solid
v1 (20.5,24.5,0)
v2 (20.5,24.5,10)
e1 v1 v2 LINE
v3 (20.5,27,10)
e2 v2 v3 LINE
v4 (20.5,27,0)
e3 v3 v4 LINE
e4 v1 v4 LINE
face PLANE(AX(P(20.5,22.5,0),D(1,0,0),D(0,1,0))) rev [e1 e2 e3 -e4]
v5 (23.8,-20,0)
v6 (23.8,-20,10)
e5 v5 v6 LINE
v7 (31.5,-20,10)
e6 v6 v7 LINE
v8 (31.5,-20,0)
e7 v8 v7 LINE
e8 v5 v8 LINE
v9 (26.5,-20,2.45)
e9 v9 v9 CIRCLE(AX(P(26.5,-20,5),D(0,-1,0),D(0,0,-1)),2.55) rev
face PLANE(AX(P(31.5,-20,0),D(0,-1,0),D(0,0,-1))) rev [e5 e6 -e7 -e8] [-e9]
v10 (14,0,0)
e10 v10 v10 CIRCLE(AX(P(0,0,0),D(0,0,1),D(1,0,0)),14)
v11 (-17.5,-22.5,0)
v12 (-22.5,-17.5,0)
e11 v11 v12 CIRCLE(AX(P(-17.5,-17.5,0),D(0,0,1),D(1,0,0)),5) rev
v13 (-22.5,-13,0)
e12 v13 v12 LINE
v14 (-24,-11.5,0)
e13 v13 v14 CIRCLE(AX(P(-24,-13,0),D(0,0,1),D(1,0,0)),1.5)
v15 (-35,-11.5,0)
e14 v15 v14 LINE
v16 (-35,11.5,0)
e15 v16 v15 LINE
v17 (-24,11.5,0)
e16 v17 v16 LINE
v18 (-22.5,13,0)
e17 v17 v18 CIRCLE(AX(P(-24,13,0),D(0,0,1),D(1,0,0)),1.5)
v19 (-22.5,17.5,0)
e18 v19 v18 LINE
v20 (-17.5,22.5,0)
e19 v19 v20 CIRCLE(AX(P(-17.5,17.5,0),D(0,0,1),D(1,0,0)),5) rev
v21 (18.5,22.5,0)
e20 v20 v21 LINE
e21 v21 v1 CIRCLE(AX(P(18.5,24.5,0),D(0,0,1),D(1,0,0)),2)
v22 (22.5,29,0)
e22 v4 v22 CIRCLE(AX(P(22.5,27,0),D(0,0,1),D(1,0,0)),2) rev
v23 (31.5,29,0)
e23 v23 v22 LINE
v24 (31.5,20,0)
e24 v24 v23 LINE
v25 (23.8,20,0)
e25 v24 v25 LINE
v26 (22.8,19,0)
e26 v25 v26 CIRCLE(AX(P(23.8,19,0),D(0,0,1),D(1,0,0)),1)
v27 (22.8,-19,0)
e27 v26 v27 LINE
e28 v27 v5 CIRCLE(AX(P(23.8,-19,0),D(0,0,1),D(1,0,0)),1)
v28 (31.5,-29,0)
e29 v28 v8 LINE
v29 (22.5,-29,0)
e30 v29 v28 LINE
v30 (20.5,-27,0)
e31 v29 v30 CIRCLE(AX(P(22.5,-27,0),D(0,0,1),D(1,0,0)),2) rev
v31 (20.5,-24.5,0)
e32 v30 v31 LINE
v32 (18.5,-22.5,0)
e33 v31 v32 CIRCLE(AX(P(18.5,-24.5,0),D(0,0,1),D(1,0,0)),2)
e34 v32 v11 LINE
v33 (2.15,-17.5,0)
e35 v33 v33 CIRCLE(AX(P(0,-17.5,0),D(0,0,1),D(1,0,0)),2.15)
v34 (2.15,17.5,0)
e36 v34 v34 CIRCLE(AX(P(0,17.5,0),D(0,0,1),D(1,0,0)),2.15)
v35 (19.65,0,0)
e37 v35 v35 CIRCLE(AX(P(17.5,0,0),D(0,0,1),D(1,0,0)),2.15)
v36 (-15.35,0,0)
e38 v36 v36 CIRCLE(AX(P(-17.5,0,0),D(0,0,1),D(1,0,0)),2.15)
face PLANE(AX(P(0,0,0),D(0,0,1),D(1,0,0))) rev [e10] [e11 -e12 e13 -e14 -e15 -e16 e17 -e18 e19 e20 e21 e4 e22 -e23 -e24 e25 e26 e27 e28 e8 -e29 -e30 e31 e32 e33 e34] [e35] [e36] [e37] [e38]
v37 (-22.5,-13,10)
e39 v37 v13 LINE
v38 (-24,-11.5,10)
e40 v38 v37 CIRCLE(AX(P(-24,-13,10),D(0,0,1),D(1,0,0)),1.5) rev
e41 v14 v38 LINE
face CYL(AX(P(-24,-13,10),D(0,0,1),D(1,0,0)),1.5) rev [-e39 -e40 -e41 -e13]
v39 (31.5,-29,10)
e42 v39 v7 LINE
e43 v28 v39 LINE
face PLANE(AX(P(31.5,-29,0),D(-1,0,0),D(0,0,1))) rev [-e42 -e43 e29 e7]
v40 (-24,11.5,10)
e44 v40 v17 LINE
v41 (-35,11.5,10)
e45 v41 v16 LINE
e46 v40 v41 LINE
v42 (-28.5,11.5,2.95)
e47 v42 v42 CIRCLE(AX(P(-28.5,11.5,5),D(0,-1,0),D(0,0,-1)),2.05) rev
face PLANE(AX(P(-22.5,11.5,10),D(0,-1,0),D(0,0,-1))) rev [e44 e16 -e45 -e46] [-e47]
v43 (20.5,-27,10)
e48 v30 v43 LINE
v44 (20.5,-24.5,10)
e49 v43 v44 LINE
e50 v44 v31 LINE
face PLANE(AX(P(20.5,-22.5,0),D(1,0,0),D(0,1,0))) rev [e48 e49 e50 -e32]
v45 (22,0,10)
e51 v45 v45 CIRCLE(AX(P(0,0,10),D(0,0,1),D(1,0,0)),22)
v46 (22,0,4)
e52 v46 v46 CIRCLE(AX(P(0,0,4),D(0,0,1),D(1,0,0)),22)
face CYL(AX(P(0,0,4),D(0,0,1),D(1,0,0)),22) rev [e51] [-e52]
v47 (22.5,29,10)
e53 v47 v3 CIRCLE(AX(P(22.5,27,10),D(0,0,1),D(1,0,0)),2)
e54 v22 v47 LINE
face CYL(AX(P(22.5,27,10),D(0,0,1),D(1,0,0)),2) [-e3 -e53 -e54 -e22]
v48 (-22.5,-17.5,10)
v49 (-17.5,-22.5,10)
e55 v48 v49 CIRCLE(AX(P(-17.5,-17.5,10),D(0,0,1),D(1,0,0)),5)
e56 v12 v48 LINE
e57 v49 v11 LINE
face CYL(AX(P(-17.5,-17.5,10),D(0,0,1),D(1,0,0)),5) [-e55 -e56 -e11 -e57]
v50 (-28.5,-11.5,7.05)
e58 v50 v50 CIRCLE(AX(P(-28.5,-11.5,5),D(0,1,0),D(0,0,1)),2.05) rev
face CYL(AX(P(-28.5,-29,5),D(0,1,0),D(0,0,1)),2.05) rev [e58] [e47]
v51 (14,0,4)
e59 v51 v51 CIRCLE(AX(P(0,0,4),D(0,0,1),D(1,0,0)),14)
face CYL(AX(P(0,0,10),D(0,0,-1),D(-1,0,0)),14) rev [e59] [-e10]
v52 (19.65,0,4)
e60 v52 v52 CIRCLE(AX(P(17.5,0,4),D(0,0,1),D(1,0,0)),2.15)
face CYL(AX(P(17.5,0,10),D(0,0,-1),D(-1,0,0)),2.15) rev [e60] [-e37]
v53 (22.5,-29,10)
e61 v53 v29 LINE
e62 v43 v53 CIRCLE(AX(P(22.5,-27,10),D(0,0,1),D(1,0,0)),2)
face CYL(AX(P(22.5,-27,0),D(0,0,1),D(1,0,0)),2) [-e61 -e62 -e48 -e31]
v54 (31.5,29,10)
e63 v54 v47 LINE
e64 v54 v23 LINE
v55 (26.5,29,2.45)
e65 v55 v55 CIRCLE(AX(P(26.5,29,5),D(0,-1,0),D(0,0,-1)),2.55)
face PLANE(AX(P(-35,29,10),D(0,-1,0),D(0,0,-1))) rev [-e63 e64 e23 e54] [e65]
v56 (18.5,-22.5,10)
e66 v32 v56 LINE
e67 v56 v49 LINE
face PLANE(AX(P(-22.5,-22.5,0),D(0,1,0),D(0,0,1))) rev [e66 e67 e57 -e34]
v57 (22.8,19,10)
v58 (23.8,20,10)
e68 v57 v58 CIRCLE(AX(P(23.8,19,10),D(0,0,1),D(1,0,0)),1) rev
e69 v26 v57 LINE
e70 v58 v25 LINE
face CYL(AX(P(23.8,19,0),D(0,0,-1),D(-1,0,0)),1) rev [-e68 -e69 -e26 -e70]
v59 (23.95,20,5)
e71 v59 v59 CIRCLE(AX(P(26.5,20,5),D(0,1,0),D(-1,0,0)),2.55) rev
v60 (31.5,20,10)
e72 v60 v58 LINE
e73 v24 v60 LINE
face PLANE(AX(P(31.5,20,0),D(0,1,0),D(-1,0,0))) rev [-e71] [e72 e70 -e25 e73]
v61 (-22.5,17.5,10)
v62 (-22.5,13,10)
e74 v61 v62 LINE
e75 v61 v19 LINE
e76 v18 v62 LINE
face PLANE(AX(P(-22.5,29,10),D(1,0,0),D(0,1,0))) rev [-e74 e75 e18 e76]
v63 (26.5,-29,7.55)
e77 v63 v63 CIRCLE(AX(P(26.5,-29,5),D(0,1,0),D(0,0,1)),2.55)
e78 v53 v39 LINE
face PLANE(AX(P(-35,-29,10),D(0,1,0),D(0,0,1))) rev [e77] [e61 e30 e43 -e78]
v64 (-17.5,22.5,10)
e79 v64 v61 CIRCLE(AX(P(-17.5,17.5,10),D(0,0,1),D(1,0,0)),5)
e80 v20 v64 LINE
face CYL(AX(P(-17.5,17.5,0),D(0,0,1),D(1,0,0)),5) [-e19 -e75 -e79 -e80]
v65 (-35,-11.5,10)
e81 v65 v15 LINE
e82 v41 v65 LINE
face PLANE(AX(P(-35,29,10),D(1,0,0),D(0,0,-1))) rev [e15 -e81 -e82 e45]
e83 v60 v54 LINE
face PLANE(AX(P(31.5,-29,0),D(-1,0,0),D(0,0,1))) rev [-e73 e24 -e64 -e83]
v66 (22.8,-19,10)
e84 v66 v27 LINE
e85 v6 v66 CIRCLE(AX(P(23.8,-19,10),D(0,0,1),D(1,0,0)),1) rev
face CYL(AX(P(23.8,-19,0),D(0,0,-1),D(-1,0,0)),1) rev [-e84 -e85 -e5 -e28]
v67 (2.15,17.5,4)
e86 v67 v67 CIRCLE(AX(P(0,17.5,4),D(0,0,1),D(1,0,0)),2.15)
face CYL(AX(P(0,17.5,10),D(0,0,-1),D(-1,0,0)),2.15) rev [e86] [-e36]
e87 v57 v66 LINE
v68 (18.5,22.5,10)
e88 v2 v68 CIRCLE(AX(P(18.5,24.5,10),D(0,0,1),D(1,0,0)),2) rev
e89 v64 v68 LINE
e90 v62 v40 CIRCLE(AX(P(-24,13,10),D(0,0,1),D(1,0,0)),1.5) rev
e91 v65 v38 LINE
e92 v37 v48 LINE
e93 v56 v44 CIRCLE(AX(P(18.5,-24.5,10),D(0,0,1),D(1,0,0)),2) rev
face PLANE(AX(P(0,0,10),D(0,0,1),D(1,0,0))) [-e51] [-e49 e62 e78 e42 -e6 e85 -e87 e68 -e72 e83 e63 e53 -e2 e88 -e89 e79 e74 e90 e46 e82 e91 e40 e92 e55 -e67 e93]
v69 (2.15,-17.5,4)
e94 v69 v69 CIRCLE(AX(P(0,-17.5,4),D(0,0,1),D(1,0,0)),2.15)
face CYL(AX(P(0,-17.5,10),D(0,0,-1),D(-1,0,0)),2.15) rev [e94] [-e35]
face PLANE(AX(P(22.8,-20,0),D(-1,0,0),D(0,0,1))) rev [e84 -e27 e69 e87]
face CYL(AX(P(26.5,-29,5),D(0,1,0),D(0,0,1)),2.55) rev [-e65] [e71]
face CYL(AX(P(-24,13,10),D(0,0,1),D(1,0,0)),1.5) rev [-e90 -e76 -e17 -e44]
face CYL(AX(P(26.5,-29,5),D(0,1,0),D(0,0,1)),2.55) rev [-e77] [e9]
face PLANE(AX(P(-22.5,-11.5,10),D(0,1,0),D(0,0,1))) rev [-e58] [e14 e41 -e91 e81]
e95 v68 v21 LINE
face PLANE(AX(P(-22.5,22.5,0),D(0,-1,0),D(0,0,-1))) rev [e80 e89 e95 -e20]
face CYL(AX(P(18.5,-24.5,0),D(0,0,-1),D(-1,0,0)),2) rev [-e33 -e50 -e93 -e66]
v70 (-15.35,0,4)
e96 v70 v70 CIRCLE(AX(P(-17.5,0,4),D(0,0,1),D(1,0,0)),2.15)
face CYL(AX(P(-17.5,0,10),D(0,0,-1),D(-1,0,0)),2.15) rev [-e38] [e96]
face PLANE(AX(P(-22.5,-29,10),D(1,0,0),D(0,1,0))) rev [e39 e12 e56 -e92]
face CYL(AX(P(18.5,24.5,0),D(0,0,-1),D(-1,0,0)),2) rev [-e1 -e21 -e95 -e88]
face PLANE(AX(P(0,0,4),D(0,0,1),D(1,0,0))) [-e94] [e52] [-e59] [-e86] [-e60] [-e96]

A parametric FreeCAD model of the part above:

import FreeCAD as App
import Part
import Sketcher
Q = App.Units.Quantity


def edges_at(feature, points):
    """Names of the edges that pass closest to the given points."""
    edges = feature.Shape.Edges
    near = lambda p: min(range(len(edges)), key=lambda i: edges[i].distToShape(Part.Vertex(*p))[0])
    return sorted({f"Edge{near(p) + 1}" for p in points})

doc = App.newDocument("Part")
body = doc.addObject("PartDesign::Body", "Body")

# Sketch on XY plane
sketch1 = doc.addObject("Sketcher::SketchObject", "Sketch")
body.addObject(sketch1)
sketch1.AttachmentSupport = (doc.XY_Plane, [""])
sketch1.MapMode = "FlatFace"
sketch1.addGeometry([
    Part.LineSegment(App.Vector(-35, 29, 0), App.Vector(-35, -29, 0)),  # 0
    Part.LineSegment(App.Vector(-35, -29, 0), App.Vector(35, -29, 0)),  # 1
    Part.LineSegment(App.Vector(35, -29, 0), App.Vector(35, 29, 0)),  # 2
    Part.LineSegment(App.Vector(35, 29, 0), App.Vector(-35, 29, 0)),  # 3
    Part.Circle(App.Vector(0, -17.5, 0), App.Vector(0, 0, 1), 2.1),  # 4
    Part.Circle(App.Vector(-17.5, 0, 0), App.Vector(0, 0, 1), 2.1),  # 5
    Part.Circle(App.Vector(0, 0, 0), App.Vector(0, 0, 1), 14),  # 6
    Part.Circle(App.Vector(17.5, 0, 0), App.Vector(0, 0, 1), 2.1),  # 7
    Part.Circle(App.Vector(0, 17.5, 0), App.Vector(0, 0, 1), 2.1),  # 8
], False)
sketch1.addConstraint([
    Sketcher.Constraint("Coincident", 0, 2, 1, 1),
    Sketcher.Constraint("Coincident", 1, 2, 2, 1),
    Sketcher.Constraint("Coincident", 2, 2, 3, 1),
    Sketcher.Constraint("Coincident", 3, 2, 0, 1),
    Sketcher.Constraint("Vertical", 0),
    Sketcher.Constraint("Horizontal", 1),
    Sketcher.Constraint("Vertical", 2),
    Sketcher.Constraint("Horizontal", 3),
    Sketcher.Constraint("Coincident", 6, 3, -1, 1),
    Sketcher.Constraint("Equal", 4, 5),
    Sketcher.Constraint("Equal", 5, 7),
    Sketcher.Constraint("Equal", 7, 8),
    Sketcher.Constraint("Symmetric", 5, 3, 7, 3, -1, 1),
    Sketcher.Constraint("Symmetric", 4, 3, 8, 3, -1, 1),
    Sketcher.Constraint("Symmetric", 0, 2, 2, 2, -1, 1),
    Sketcher.Constraint("PointOnObject", 4, 3, -2),
    Sketcher.Constraint("PointOnObject", 5, 3, -1),
    Sketcher.Constraint("Diameter", 6, Q("28 mm")),
    Sketcher.Constraint("Diameter", 4, Q("4.3 mm")),
    Sketcher.Constraint("DistanceX", 1, 1, 1, 2, Q("70 mm")),
    Sketcher.Constraint("DistanceY", 0, 2, 0, 1, Q("58 mm")),
    Sketcher.Constraint("DistanceX", 5, 3, 7, 3, Q("35 mm")),
    Sketcher.Constraint("DistanceY", 4, 3, 8, 3, Q("35 mm")),
])
pad1 = doc.addObject("PartDesign::Pad", "Pad")
body.addObject(pad1)
pad1.Profile = sketch1
pad1.Length = 10

# Sketch on XY plane
sketch2 = doc.addObject("Sketcher::SketchObject", "Sketch001")
body.addObject(sketch2)
sketch2.AttachmentSupport = (doc.XY_Plane, [""])
sketch2.MapMode = "FlatFace"
sketch2.AttachmentOffset = App.Placement(App.Vector(0, 0, 10), App.Rotation())
sketch2.addGeometry(Part.Circle(App.Vector(0, 0, 0), App.Vector(0, 0, 1), 22), False)
sketch2.addConstraint([
    Sketcher.Constraint("Coincident", 0, 3, -1, 1),
    Sketcher.Constraint("Diameter", 0, Q("44 mm")),
])
pocket1 = doc.addObject("PartDesign::Pocket", "Pocket")
body.addObject(pocket1)
pocket1.Profile = sketch2
pocket1.Length = 6

# Sketch on XZ plane
sketch3 = doc.addObject("Sketcher::SketchObject", "Sketch002")
body.addObject(sketch3)
sketch3.AttachmentSupport = (doc.XZ_Plane, [""])
sketch3.MapMode = "FlatFace"
sketch3.AttachmentOffset = App.Placement(App.Vector(0, 0, -29), App.Rotation())
sketch3.addGeometry(Part.Circle(App.Vector(26.5, 5, 0), App.Vector(0, 0, 1), 2.5), False)
sketch3.addConstraint([
    Sketcher.Constraint("Diameter", 0, Q("5.1 mm")),
    Sketcher.Constraint("DistanceY", -1, 1, 0, 3, Q("5 mm")),
    Sketcher.Constraint("DistanceX", -1, 1, 0, 3, Q("26.5 mm")),
])
pocket2 = doc.addObject("PartDesign::Pocket", "Pocket001")
body.addObject(pocket2)
pocket2.Profile = sketch3
pocket2.Type = "ThroughAll"
pocket2.Midplane = True

# Sketch on XZ plane
sketch4 = doc.addObject("Sketcher::SketchObject", "Sketch003")
body.addObject(sketch4)
sketch4.AttachmentSupport = (doc.XZ_Plane, [""])
sketch4.MapMode = "FlatFace"
sketch4.AttachmentOffset = App.Placement(App.Vector(0, 0, -29), App.Rotation())
sketch4.addGeometry(Part.Circle(App.Vector(-28.5, 5, 0), App.Vector(0, 0, 1), 2), False)
sketch4.addConstraint([
    Sketcher.Constraint("Diameter", 0, Q("4.1 mm")),
    Sketcher.Constraint("DistanceY", -1, 1, 0, 3, Q("5 mm")),
    Sketcher.Constraint("DistanceX", 0, 3, -1, 1, Q("28.5 mm")),
])
pocket3 = doc.addObject("PartDesign::Pocket", "Pocket002")
body.addObject(pocket3)
pocket3.Profile = sketch4
pocket3.Type = "ThroughAll"
pocket3.Midplane = True

# Sketch on XY plane
sketch5 = doc.addObject("Sketcher::SketchObject", "Sketch004")
body.addObject(sketch5)
sketch5.AttachmentSupport = (doc.XY_Plane, [""])
sketch5.MapMode = "FlatFace"
sketch5.addGeometry([
    Part.LineSegment(App.Vector(-22, 29, 0), App.Vector(-22, 12, 0)),  # 0
    Part.LineSegment(App.Vector(-22, 12, 0), App.Vector(-35, 12, 0)),  # 1
    Part.LineSegment(App.Vector(-35, 12, 0), App.Vector(-35, 29, 0)),  # 2
    Part.LineSegment(App.Vector(-35, 29, 0), App.Vector(-22, 29, 0)),  # 3
    Part.LineSegment(App.Vector(-22, -12, 0), App.Vector(-22, -29, 0)),  # 4
    Part.LineSegment(App.Vector(-22, -29, 0), App.Vector(-35, -29, 0)),  # 5
    Part.LineSegment(App.Vector(-35, -29, 0), App.Vector(-35, -12, 0)),  # 6
    Part.LineSegment(App.Vector(-35, -12, 0), App.Vector(-22, -12, 0)),  # 7
], False)
sketch5.addConstraint([
    Sketcher.Constraint("Coincident", 0, 2, 1, 1),
    Sketcher.Constraint("Coincident", 1, 2, 2, 1),
    Sketcher.Constraint("Coincident", 2, 2, 3, 1),
    Sketcher.Constraint("Coincident", 3, 2, 0, 1),
    Sketcher.Constraint("Coincident", 4, 2, 5, 1),
    Sketcher.Constraint("Coincident", 5, 2, 6, 1),
    Sketcher.Constraint("Coincident", 6, 2, 7, 1),
    Sketcher.Constraint("Coincident", 7, 2, 4, 1),
    Sketcher.Constraint("Vertical", 0),
    Sketcher.Constraint("Horizontal", 1),
    Sketcher.Constraint("Vertical", 2),
    Sketcher.Constraint("Horizontal", 3),
    Sketcher.Constraint("Vertical", 4),
    Sketcher.Constraint("Horizontal", 5),
    Sketcher.Constraint("Vertical", 6),
    Sketcher.Constraint("Horizontal", 7),
    Sketcher.Constraint("Symmetric", 3, 2, 4, 2, -1),
    Sketcher.Constraint("Symmetric", 1, 2, 6, 2, -1),
    Sketcher.Constraint("DistanceX", 1, 2, 1, 1, Q("12.5 mm")),
    Sketcher.Constraint("DistanceY", 0, 2, 0, 1, Q("17.5 mm")),
    Sketcher.Constraint("DistanceX", 1, 2, -1, 1, Q("35 mm")),
    Sketcher.Constraint("DistanceY", -1, 1, 2, 2, Q("29 mm")),
])
pocket4 = doc.addObject("PartDesign::Pocket", "Pocket003")
body.addObject(pocket4)
pocket4.Profile = sketch5
pocket4.Type = "ThroughAll"
pocket4.Reversed = True
doc.recompute()

fillet = doc.addObject("PartDesign::Fillet", "Fillet")
body.addObject(fillet)
fillet.Base = (pocket4, edges_at(pocket4, [(-22.5, 11.5, 5), (-22.5, -11.5, 5)]))
fillet.Radius = 1.5

# Sketch on XZ plane
sketch6 = doc.addObject("Sketcher::SketchObject", "Sketch005")
body.addObject(sketch6)
sketch6.AttachmentSupport = (doc.XZ_Plane, [""])
sketch6.MapMode = "FlatFace"
sketch6.AttachmentOffset = App.Placement(App.Vector(0, 0, -29), App.Rotation())
sketch6.addGeometry([
    Part.LineSegment(App.Vector(31.5, 0, 0), App.Vector(31.5, 10, 0)),
    Part.LineSegment(App.Vector(31.5, 10, 0), App.Vector(35, 10, 0)),
    Part.LineSegment(App.Vector(35, 10, 0), App.Vector(35, 0, 0)),
    Part.LineSegment(App.Vector(35, 0, 0), App.Vector(31.5, 0, 0)),
], False)
sketch6.addConstraint([
    Sketcher.Constraint("Coincident", 0, 2, 1, 1),
    Sketcher.Constraint("Coincident", 1, 2, 2, 1),
    Sketcher.Constraint("Coincident", 2, 2, 3, 1),
    Sketcher.Constraint("Coincident", 3, 2, 0, 1),
    Sketcher.Constraint("Vertical", 0),
    Sketcher.Constraint("Horizontal", 1),
    Sketcher.Constraint("Vertical", 2),
    Sketcher.Constraint("Horizontal", 3),
    Sketcher.Constraint("PointOnObject", 2, 2, -1),
    Sketcher.Constraint("DistanceY", 0, 1, 0, 2, Q("10 mm")),
    Sketcher.Constraint("DistanceX", 1, 1, 1, 2, Q("3.5 mm")),
    Sketcher.Constraint("DistanceX", -1, 1, 1, 2, Q("35 mm")),
])
pocket5 = doc.addObject("PartDesign::Pocket", "Pocket004")
body.addObject(pocket5)
pocket5.Profile = sketch6
pocket5.Type = "ThroughAll"
pocket5.Midplane = True

# Sketch on XY plane
sketch7 = doc.addObject("Sketcher::SketchObject", "Sketch006")
body.addObject(sketch7)
sketch7.AttachmentSupport = (doc.XY_Plane, [""])
sketch7.MapMode = "FlatFace"
sketch7.AttachmentOffset = App.Placement(App.Vector(0, 0, 10), App.Rotation())
sketch7.addGeometry([
    Part.LineSegment(App.Vector(23, 20, 0), App.Vector(23, -20, 0)),
    Part.LineSegment(App.Vector(23, -20, 0), App.Vector(32, -20, 0)),
    Part.LineSegment(App.Vector(32, -20, 0), App.Vector(32, 20, 0)),
    Part.LineSegment(App.Vector(32, 20, 0), App.Vector(23, 20, 0)),
], False)
sketch7.addConstraint([
    Sketcher.Constraint("Coincident", 0, 2, 1, 1),
    Sketcher.Constraint("Coincident", 1, 2, 2, 1),
    Sketcher.Constraint("Coincident", 2, 2, 3, 1),
    Sketcher.Constraint("Coincident", 3, 2, 0, 1),
    Sketcher.Constraint("Vertical", 0),
    Sketcher.Constraint("Horizontal", 1),
    Sketcher.Constraint("Vertical", 2),
    Sketcher.Constraint("Horizontal", 3),
    Sketcher.Constraint("DistanceY", 0, 2, 0, 1, Q("40 mm")),
    Sketcher.Constraint("DistanceX", 1, 1, 1, 2, Q("8.7 mm")),
    Sketcher.Constraint("DistanceY", 0, 2, -1, 1, Q("20 mm")),
    Sketcher.Constraint("DistanceX", -1, 1, 0, 2, Q("22.8 mm")),
])
pocket6 = doc.addObject("PartDesign::Pocket", "Pocket005")
body.addObject(pocket6)
pocket6.Profile = sketch7
pocket6.Type = "ThroughAll"
doc.recompute()

fillet2 = doc.addObject("PartDesign::Fillet", "Fillet001")
body.addObject(fillet2)
fillet2.Base = (pocket6, edges_at(pocket6, [(22.8, 20, 5), (22.8, -20, 5)]))
fillet2.Radius = 1

# Sketch on XY plane
sketch8 = doc.addObject("Sketcher::SketchObject", "Sketch007")
body.addObject(sketch8)
sketch8.AttachmentSupport = (doc.XY_Plane, [""])
sketch8.MapMode = "FlatFace"
sketch8.AttachmentOffset = App.Placement(App.Vector(0, 0, 10), App.Rotation())
sketch8.addGeometry([
    Part.LineSegment(App.Vector(-22, -22, 0), App.Vector(-22, -29, 0)),  # 0
    Part.LineSegment(App.Vector(-22, -29, 0), App.Vector(20, -29, 0)),  # 1
    Part.LineSegment(App.Vector(20, -29, 0), App.Vector(20, -22, 0)),  # 2
    Part.LineSegment(App.Vector(20, -22, 0), App.Vector(-22, -22, 0)),  # 3
    Part.LineSegment(App.Vector(-22, 29, 0), App.Vector(-22, 22, 0)),  # 4
    Part.LineSegment(App.Vector(-22, 22, 0), App.Vector(20, 22, 0)),  # 5
    Part.LineSegment(App.Vector(20, 22, 0), App.Vector(20, 29, 0)),  # 6
    Part.LineSegment(App.Vector(20, 29, 0), App.Vector(-22, 29, 0)),  # 7
], False)
sketch8.addConstraint([
    Sketcher.Constraint("Coincident", 0, 2, 1, 1),
    Sketcher.Constraint("Coincident", 1, 2, 2, 1),
    Sketcher.Constraint("Coincident", 2, 2, 3, 1),
    Sketcher.Constraint("Coincident", 3, 2, 0, 1),
    Sketcher.Constraint("Coincident", 4, 2, 5, 1),
    Sketcher.Constraint("Coincident", 5, 2, 6, 1),
    Sketcher.Constraint("Coincident", 6, 2, 7, 1),
    Sketcher.Constraint("Coincident", 7, 2, 4, 1),
    Sketcher.Constraint("Vertical", 0),
    Sketcher.Constraint("Horizontal", 1),
    Sketcher.Constraint("Vertical", 2),
    Sketcher.Constraint("Horizontal", 3),
    Sketcher.Constraint("Vertical", 4),
    Sketcher.Constraint("Horizontal", 5),
    Sketcher.Constraint("Vertical", 6),
    Sketcher.Constraint("Horizontal", 7),
    Sketcher.Constraint("Symmetric", 3, 2, 4, 2, -1),
    Sketcher.Constraint("Symmetric", 1, 2, 6, 2, -1),
    Sketcher.Constraint("DistanceX", 1, 1, 1, 2, Q("43 mm")),
    Sketcher.Constraint("DistanceY", 0, 2, 0, 1, Q("6.5 mm")),
    Sketcher.Constraint("DistanceY", 0, 2, -1, 1, Q("29 mm")),
    Sketcher.Constraint("DistanceX", 0, 2, -1, 1, Q("22.5 mm")),
])
pocket7 = doc.addObject("PartDesign::Pocket", "Pocket006")
body.addObject(pocket7)
pocket7.Profile = sketch8
pocket7.Type = "ThroughAll"
doc.recompute()

fillet3 = doc.addObject("PartDesign::Fillet", "Fillet002")
body.addObject(fillet3)
fillet3.Base = (pocket7, edges_at(pocket7, [(-22.5, -22.5, 5), (-22.5, 22.5, 5)]))
fillet3.Radius = 5
doc.recompute()

fillet4 = doc.addObject("PartDesign::Fillet", "Fillet003")
body.addObject(fillet4)
fillet4.Base = (fillet3, edges_at(fillet3, [
    (20.5, -22.5, 5),
    (20.5, -29, 5),
    (20.5, 29, 5),
    (20.5, 22.5, 5),
]))
fillet4.Radius = 2

doc.recompute()
